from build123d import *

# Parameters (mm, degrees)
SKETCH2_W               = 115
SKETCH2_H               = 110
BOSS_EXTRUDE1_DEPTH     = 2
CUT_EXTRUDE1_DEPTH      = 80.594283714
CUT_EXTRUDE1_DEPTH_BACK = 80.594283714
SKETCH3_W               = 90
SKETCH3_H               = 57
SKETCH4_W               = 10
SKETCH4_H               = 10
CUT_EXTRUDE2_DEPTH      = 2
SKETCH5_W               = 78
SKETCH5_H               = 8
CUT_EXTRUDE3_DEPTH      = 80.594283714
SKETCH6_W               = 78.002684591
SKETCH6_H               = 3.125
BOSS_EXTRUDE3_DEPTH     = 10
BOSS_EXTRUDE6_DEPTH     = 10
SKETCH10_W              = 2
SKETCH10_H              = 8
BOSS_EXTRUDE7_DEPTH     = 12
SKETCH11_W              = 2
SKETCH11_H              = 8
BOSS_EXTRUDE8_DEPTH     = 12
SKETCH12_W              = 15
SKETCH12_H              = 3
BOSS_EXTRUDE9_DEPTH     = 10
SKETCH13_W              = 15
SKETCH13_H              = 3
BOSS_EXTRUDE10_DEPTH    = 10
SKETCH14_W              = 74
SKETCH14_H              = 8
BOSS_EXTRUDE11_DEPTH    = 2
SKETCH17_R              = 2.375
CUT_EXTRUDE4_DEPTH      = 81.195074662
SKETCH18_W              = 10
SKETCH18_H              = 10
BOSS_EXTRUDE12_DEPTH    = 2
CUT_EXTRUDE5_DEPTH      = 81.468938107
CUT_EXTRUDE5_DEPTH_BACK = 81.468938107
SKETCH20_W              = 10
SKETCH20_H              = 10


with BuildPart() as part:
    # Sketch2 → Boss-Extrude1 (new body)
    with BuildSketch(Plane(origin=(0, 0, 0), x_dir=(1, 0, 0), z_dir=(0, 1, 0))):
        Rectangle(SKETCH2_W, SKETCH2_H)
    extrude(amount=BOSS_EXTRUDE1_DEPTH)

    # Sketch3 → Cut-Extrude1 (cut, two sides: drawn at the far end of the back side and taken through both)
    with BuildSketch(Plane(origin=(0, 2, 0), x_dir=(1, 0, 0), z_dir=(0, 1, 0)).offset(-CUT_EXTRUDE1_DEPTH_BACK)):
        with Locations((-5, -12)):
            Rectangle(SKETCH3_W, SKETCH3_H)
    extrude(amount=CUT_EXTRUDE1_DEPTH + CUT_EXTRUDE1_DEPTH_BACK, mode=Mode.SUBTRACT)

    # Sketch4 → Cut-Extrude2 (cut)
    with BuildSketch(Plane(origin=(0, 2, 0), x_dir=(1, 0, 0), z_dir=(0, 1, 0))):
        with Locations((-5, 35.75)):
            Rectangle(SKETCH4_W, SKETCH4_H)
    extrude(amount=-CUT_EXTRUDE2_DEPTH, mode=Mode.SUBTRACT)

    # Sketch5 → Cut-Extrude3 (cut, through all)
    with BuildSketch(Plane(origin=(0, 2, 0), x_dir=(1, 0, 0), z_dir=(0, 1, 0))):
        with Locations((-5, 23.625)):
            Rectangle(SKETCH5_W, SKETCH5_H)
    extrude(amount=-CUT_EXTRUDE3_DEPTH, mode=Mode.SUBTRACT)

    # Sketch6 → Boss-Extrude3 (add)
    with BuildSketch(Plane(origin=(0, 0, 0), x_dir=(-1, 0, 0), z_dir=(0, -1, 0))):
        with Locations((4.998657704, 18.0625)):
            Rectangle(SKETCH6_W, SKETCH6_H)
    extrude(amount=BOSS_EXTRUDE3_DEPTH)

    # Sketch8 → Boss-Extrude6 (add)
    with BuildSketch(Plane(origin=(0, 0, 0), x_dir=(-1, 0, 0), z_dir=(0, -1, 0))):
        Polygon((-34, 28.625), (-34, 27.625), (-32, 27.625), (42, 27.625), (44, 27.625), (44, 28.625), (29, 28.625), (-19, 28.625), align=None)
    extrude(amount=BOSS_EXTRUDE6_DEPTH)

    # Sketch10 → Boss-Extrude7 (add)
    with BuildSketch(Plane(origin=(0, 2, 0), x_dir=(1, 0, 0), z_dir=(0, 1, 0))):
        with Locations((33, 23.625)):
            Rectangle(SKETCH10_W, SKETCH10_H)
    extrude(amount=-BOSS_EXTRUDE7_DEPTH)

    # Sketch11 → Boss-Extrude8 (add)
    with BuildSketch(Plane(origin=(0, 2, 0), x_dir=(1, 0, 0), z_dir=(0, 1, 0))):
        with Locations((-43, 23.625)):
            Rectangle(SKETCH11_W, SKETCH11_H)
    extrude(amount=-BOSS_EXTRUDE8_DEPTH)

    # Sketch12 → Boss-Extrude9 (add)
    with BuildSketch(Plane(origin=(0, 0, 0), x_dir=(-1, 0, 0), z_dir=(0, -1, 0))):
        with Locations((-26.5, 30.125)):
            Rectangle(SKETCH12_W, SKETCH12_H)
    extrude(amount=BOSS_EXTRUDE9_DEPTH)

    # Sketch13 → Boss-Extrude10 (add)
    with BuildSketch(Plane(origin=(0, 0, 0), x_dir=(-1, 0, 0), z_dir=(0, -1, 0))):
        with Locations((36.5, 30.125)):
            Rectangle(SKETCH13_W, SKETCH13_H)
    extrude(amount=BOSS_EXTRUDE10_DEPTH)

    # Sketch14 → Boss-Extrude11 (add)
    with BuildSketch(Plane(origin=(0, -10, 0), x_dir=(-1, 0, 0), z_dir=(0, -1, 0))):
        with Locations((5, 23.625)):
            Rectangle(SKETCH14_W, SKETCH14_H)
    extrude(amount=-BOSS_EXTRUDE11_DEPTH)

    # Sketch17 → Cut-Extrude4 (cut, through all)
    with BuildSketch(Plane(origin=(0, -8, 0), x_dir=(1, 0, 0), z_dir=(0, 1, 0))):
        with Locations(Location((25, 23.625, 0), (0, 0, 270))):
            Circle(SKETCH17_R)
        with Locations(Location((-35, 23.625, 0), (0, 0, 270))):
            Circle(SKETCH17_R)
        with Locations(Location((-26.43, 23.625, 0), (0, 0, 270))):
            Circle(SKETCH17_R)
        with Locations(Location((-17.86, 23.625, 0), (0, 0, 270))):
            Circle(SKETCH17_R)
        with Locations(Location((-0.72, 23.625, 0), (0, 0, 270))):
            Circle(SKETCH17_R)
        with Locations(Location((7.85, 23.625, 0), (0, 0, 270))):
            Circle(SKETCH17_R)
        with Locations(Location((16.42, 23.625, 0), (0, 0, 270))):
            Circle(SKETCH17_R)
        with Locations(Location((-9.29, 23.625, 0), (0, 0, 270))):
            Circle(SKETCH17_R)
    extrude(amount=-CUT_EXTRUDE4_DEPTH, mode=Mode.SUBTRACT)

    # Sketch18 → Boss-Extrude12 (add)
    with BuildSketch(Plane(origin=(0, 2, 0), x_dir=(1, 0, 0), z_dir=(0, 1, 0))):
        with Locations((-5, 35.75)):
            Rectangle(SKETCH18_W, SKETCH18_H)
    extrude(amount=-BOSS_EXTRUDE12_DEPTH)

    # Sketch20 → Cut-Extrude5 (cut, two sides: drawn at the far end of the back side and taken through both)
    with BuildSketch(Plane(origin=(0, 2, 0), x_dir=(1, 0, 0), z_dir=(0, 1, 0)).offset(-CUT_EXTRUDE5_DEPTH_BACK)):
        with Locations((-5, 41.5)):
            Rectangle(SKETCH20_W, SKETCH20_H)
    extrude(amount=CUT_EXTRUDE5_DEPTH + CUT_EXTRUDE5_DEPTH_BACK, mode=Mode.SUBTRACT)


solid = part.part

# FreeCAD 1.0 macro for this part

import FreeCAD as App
import Part
import Sketcher
Q = App.Units.Quantity

doc = App.newDocument("Part")
body = doc.addObject("PartDesign::Body", "Body")

# Sketch on XZ plane
sketch1 = doc.addObject("Sketcher::SketchObject", "Sketch")
body.addObject(sketch1)
sketch1.AttachmentSupport = (doc.XZ_Plane, [""])
sketch1.MapMode = "FlatFace"
sketch1.addGeometry([
    Part.LineSegment(App.Vector(-58, -55, 0), App.Vector(-58, 55, 0)),
    Part.LineSegment(App.Vector(-58, 55, 0), App.Vector(58, 55, 0)),
    Part.LineSegment(App.Vector(58, 55, 0), App.Vector(58, -55, 0)),
    Part.LineSegment(App.Vector(58, -55, 0), App.Vector(-58, -55, 0)),
], False)
sketch1.addConstraint([
    Sketcher.Constraint("Coincident", 0, 2, 1, 1),
    Sketcher.Constraint("Coincident", 1, 2, 2, 1),
    Sketcher.Constraint("Coincident", 2, 2, 3, 1),
    Sketcher.Constraint("Coincident", 3, 2, 0, 1),
    Sketcher.Constraint("Vertical", 0),
    Sketcher.Constraint("Horizontal", 1),
    Sketcher.Constraint("Vertical", 2),
    Sketcher.Constraint("Horizontal", 3),
    Sketcher.Constraint("Symmetric", 0, 2, 2, 2, -1, 1),
    Sketcher.Constraint("DistanceX", 1, 1, 1, 2, Q("115 mm")),
    Sketcher.Constraint("DistanceY", 0, 1, 0, 2, Q("110 mm")),
])
pad1 = doc.addObject("PartDesign::Pad", "Pad")
body.addObject(pad1)
pad1.Profile = sketch1
pad1.Length = 2
pad1.Reversed = True

# Sketch on XZ plane
sketch2 = doc.addObject("Sketcher::SketchObject", "Sketch001")
body.addObject(sketch2)
sketch2.AttachmentSupport = (doc.XZ_Plane, [""])
sketch2.MapMode = "FlatFace"
sketch2.AttachmentOffset = App.Placement(App.Vector(0, 0, -2), App.Rotation())
sketch2.addGeometry([
    Part.LineSegment(App.Vector(-50, -16, 0), App.Vector(-50, 40, 0)),
    Part.LineSegment(App.Vector(-50, 40, 0), App.Vector(40, 40, 0)),
    Part.LineSegment(App.Vector(40, 40, 0), App.Vector(40, -16, 0)),
    Part.LineSegment(App.Vector(40, -16, 0), App.Vector(-50, -16, 0)),
], False)
sketch2.addConstraint([
    Sketcher.Constraint("Coincident", 0, 2, 1, 1),
    Sketcher.Constraint("Coincident", 1, 2, 2, 1),
    Sketcher.Constraint("Coincident", 2, 2, 3, 1),
    Sketcher.Constraint("Coincident", 3, 2, 0, 1),
    Sketcher.Constraint("Vertical", 0),
    Sketcher.Constraint("Horizontal", 1),
    Sketcher.Constraint("Vertical", 2),
    Sketcher.Constraint("Horizontal", 3),
    Sketcher.Constraint("DistanceX", 1, 1, 1, 2, Q("90 mm")),
    Sketcher.Constraint("DistanceY", 0, 1, 0, 2, Q("57 mm")),
    Sketcher.Constraint("DistanceX", 0, 2, -1, 1, Q("50 mm")),
    Sketcher.Constraint("DistanceY", -1, 1, 0, 2, Q("40.5 mm")),
])
pocket1 = doc.addObject("PartDesign::Pocket", "Pocket")
body.addObject(pocket1)
pocket1.Profile = sketch2
pocket1.Type = "ThroughAll"
pocket1.Midplane = True

# Sketch on XZ plane
sketch3 = doc.addObject("Sketcher::SketchObject", "Sketch002")
body.addObject(sketch3)
sketch3.AttachmentSupport = (doc.XZ_Plane, [""])
sketch3.MapMode = "FlatFace"
sketch3.AttachmentOffset = App.Placement(App.Vector(0, 0, -2), App.Rotation())
sketch3.addGeometry([
    Part.LineSegment(App.Vector(-10, -41, 0), App.Vector(-10, -31, 0)),
    Part.LineSegment(App.Vector(-10, -31, 0), App.Vector(0, -31, 0)),
    Part.LineSegment(App.Vector(0, -31, 0), App.Vector(0, -41, 0)),
    Part.LineSegment(App.Vector(0, -41, 0), App.Vector(-10, -41, 0)),
], False)
sketch3.addConstraint([
    Sketcher.Constraint("Coincident", 0, 2, 1, 1),
    Sketcher.Constraint("Coincident", 1, 2, 2, 1),
    Sketcher.Constraint("Coincident", 2, 2, 3, 1),
    Sketcher.Constraint("Coincident", 3, 2, 0, 1),
    Sketcher.Constraint("Vertical", 0),
    Sketcher.Constraint("Horizontal", 1),
    Sketcher.Constraint("Vertical", 2),
    Sketcher.Constraint("Horizontal", 3),
    Sketcher.Constraint("PointOnObject", 1, 2, -2),
    Sketcher.Constraint("Equal", 3, 0),
    Sketcher.Constraint("DistanceX", 1, 1, 1, 2, Q("10 mm")),
    Sketcher.Constraint("DistanceY", 0, 2, -1, 1, Q("30.75 mm")),
])
pocket2 = doc.addObject("PartDesign::Pocket", "Pocket001")
body.addObject(pocket2)
pocket2.Profile = sketch3
pocket2.Length = 2
pocket2.Reversed = True

# Sketch on XZ plane
sketch4 = doc.addObject("Sketcher::SketchObject", "Sketch003")
body.addObject(sketch4)
sketch4.AttachmentSupport = (doc.XZ_Plane, [""])
sketch4.MapMode = "FlatFace"
sketch4.AttachmentOffset = App.Placement(App.Vector(0, 0, -2), App.Rotation())
sketch4.addGeometry([
    Part.LineSegment(App.Vector(-44, -28, 0), App.Vector(-44, -20, 0)),
    Part.LineSegment(App.Vector(-44, -20, 0), App.Vector(34, -20, 0)),
    Part.LineSegment(App.Vector(34, -20, 0), App.Vector(34, -28, 0)),
    Part.LineSegment(App.Vector(34, -28, 0), App.Vector(-44, -28, 0)),
], False)
sketch4.addConstraint([
    Sketcher.Constraint("Coincident", 0, 2, 1, 1),
    Sketcher.Constraint("Coincident", 1, 2, 2, 1),
    Sketcher.Constraint("Coincident", 2, 2, 3, 1),
    Sketcher.Constraint("Coincident", 3, 2, 0, 1),
    Sketcher.Constraint("Vertical", 0),
    Sketcher.Constraint("Horizontal", 1),
    Sketcher.Constraint("Vertical", 2),
    Sketcher.Constraint("Horizontal", 3),
    Sketcher.Constraint("DistanceX", 1, 1, 1, 2, Q("78 mm")),
    Sketcher.Constraint("DistanceY", 0, 1, 0, 2, Q("8 mm")),
    Sketcher.Constraint("DistanceX", 0, 2, -1, 1, Q("44 mm")),
    Sketcher.Constraint("DistanceY", 0, 2, -1, 1, Q("19.625 mm")),
])
pocket3 = doc.addObject("PartDesign::Pocket", "Pocket002")
body.addObject(pocket3)
pocket3.Profile = sketch4
pocket3.Type = "ThroughAll"
pocket3.Reversed = True

# Sketch on XZ plane
sketch5 = doc.addObject("Sketcher::SketchObject", "Sketch004")
body.addObject(sketch5)
sketch5.AttachmentSupport = (doc.XZ_Plane, [""])
sketch5.MapMode = "FlatFace"
sketch5.addGeometry([
    Part.LineSegment(App.Vector(34, -19.6, 0), App.Vector(34, -16.5, 0)),
    Part.LineSegment(App.Vector(34, -16.5, 0), App.Vector(-44, -16.5, 0)),
    Part.LineSegment(App.Vector(-44, -16.5, 0), App.Vector(-44, -19.6, 0)),
    Part.LineSegment(App.Vector(-44, -19.6, 0), App.Vector(34, -19.6, 0)),
], False)
sketch5.addConstraint([
    Sketcher.Constraint("Coincident", 0, 2, 1, 1),
    Sketcher.Constraint("Coincident", 1, 2, 2, 1),
    Sketcher.Constraint("Coincident", 2, 2, 3, 1),
    Sketcher.Constraint("Coincident", 3, 2, 0, 1),
    Sketcher.Constraint("Vertical", 0),
    Sketcher.Constraint("Horizontal", 1),
    Sketcher.Constraint("Vertical", 2),
    Sketcher.Constraint("Horizontal", 3),
    Sketcher.Constraint("DistanceX", 1, 2, -1, 1, Q("44 mm")),
    Sketcher.Constraint("DistanceY", 0, 2, -1, 1, Q("16.5 mm")),
    Sketcher.Constraint("DistanceY", 0, 1, 0, 2, Q("3.125 mm")),
    Sketcher.Constraint("DistanceX", 1, 2, 1, 1, Q("78.002685 mm")),
])
pad2 = doc.addObject("PartDesign::Pad", "Pad001")
body.addObject(pad2)
pad2.Profile = sketch5
pad2.Length = 10

# Sketch on XZ plane
sketch6 = doc.addObject("Sketcher::SketchObject", "Sketch005")
body.addObject(sketch6)
sketch6.AttachmentSupport = (doc.XZ_Plane, [""])
sketch6.MapMode = "FlatFace"
sketch6.addGeometry([
    Part.LineSegment(App.Vector(34, -28.6, 0), App.Vector(34, -27.6, 0)),
    Part.LineSegment(App.Vector(34, -27.6, 0), App.Vector(-44, -27.6, 0)),
    Part.LineSegment(App.Vector(-44, -27.6, 0), App.Vector(-44, -28.6, 0)),
    Part.LineSegment(App.Vector(-44, -28.6, 0), App.Vector(34, -28.6, 0)),
], False)
sketch6.addConstraint([
    Sketcher.Constraint("Coincident", 0, 2, 1, 1),
    Sketcher.Constraint("Coincident", 1, 2, 2, 1),
    Sketcher.Constraint("Coincident", 2, 2, 3, 1),
    Sketcher.Constraint("Coincident", 3, 2, 0, 1),
    Sketcher.Constraint("Vertical", 0),
    Sketcher.Constraint("Horizontal", 1),
    Sketcher.Constraint("Vertical", 2),
    Sketcher.Constraint("Horizontal", 3),
    Sketcher.Constraint("DistanceX", 1, 2, 1, 1, Q("78 mm")),
    Sketcher.Constraint("DistanceY", 0, 1, 0, 2, Q("1 mm")),
    Sketcher.Constraint("DistanceX", -1, 1, 0, 2, Q("34 mm")),
    Sketcher.Constraint("DistanceY", 0, 2, -1, 1, Q("27.625 mm")),
])
pad3 = doc.addObject("PartDesign::Pad", "Pad002")
body.addObject(pad3)
pad3.Profile = sketch6
pad3.Length = 10

# Sketch on XZ plane
sketch7 = doc.addObject("Sketcher::SketchObject", "Sketch006")
body.addObject(sketch7)
sketch7.AttachmentSupport = (doc.XZ_Plane, [""])
sketch7.MapMode = "FlatFace"
sketch7.AttachmentOffset = App.Placement(App.Vector(0, 0, -2), App.Rotation())
sketch7.addGeometry([
    Part.LineSegment(App.Vector(32, -27.6, 0), App.Vector(32, -19.6, 0)),
    Part.LineSegment(App.Vector(32, -19.6, 0), App.Vector(34, -19.6, 0)),
    Part.LineSegment(App.Vector(34, -19.6, 0), App.Vector(34, -27.6, 0)),
    Part.LineSegment(App.Vector(34, -27.6, 0), App.Vector(32, -27.6, 0)),
], False)
sketch7.addConstraint([
    Sketcher.Constraint("Coincident", 0, 2, 1, 1),
    Sketcher.Constraint("Coincident", 1, 2, 2, 1),
    Sketcher.Constraint("Coincident", 2, 2, 3, 1),
    Sketcher.Constraint("Coincident", 3, 2, 0, 1),
    Sketcher.Constraint("Vertical", 0),
    Sketcher.Constraint("Horizontal", 1),
    Sketcher.Constraint("Vertical", 2),
    Sketcher.Constraint("Horizontal", 3),
    Sketcher.Constraint("DistanceX", 1, 1, 1, 2, Q("2 mm")),
    Sketcher.Constraint("DistanceY", 0, 1, 0, 2, Q("8 mm")),
    Sketcher.Constraint("DistanceX", -1, 1, 0, 2, Q("32 mm")),
    Sketcher.Constraint("DistanceY", 0, 2, -1, 1, Q("19.625 mm")),
])
pad4 = doc.addObject("PartDesign::Pad", "Pad003")
body.addObject(pad4)
pad4.Profile = sketch7
pad4.Length = 12

# Sketch on XZ plane
sketch8 = doc.addObject("Sketcher::SketchObject", "Sketch007")
body.addObject(sketch8)
sketch8.AttachmentSupport = (doc.XZ_Plane, [""])
sketch8.MapMode = "FlatFace"
sketch8.AttachmentOffset = App.Placement(App.Vector(0, 0, -2), App.Rotation())
sketch8.addGeometry([
    Part.LineSegment(App.Vector(-44, -27.6, 0), App.Vector(-44, -19.6, 0)),
    Part.LineSegment(App.Vector(-44, -19.6, 0), App.Vector(-42, -19.6, 0)),
    Part.LineSegment(App.Vector(-42, -19.6, 0), App.Vector(-42, -27.6, 0)),
    Part.LineSegment(App.Vector(-42, -27.6, 0), App.Vector(-44, -27.6, 0)),
], False)
sketch8.addConstraint([
    Sketcher.Constraint("Coincident", 0, 2, 1, 1),
    Sketcher.Constraint("Coincident", 1, 2, 2, 1),
    Sketcher.Constraint("Coincident", 2, 2, 3, 1),
    Sketcher.Constraint("Coincident", 3, 2, 0, 1),
    Sketcher.Constraint("Vertical", 0),
    Sketcher.Constraint("Horizontal", 1),
    Sketcher.Constraint("Vertical", 2),
    Sketcher.Constraint("Horizontal", 3),
    Sketcher.Constraint("DistanceX", 1, 1, 1, 2, Q("2 mm")),
    Sketcher.Constraint("DistanceY", 0, 1, 0, 2, Q("8 mm")),
    Sketcher.Constraint("DistanceX", 0, 2, -1, 1, Q("44 mm")),
    Sketcher.Constraint("DistanceY", 0, 2, -1, 1, Q("19.625 mm")),
])
pad5 = doc.addObject("PartDesign::Pad", "Pad004")
body.addObject(pad5)
pad5.Profile = sketch8
pad5.Length = 12

# Sketch on XZ plane
sketch9 = doc.addObject("Sketcher::SketchObject", "Sketch008")
body.addObject(sketch9)
sketch9.AttachmentSupport = (doc.XZ_Plane, [""])
sketch9.MapMode = "FlatFace"
sketch9.addGeometry([
    Part.LineSegment(App.Vector(34, -31.6, 0), App.Vector(34, -28.6, 0)),
    Part.LineSegment(App.Vector(34, -28.6, 0), App.Vector(19, -28.6, 0)),
    Part.LineSegment(App.Vector(19, -28.6, 0), App.Vector(19, -31.6, 0)),
    Part.LineSegment(App.Vector(19, -31.6, 0), App.Vector(34, -31.6, 0)),
], False)
sketch9.addConstraint([
    Sketcher.Constraint("Coincident", 0, 2, 1, 1),
    Sketcher.Constraint("Coincident", 1, 2, 2, 1),
    Sketcher.Constraint("Coincident", 2, 2, 3, 1),
    Sketcher.Constraint("Coincident", 3, 2, 0, 1),
    Sketcher.Constraint("Vertical", 0),
    Sketcher.Constraint("Horizontal", 1),
    Sketcher.Constraint("Vertical", 2),
    Sketcher.Constraint("Horizontal", 3),
    Sketcher.Constraint("DistanceX", 1, 2, 1, 1, Q("15 mm")),
    Sketcher.Constraint("DistanceY", 0, 1, 0, 2, Q("3 mm")),
    Sketcher.Constraint("DistanceX", -1, 1, 0, 2, Q("34 mm")),
    Sketcher.Constraint("DistanceY", 0, 2, -1, 1, Q("28.625 mm")),
])
pad6 = doc.addObject("PartDesign::Pad", "Pad005")
body.addObject(pad6)
pad6.Profile = sketch9
pad6.Length = 10

# Sketch on XZ plane
sketch10 = doc.addObject("Sketcher::SketchObject", "Sketch009")
body.addObject(sketch10)
sketch10.AttachmentSupport = (doc.XZ_Plane, [""])
sketch10.MapMode = "FlatFace"
sketch10.addGeometry([
    Part.LineSegment(App.Vector(-29, -31.6, 0), App.Vector(-29, -28.6, 0)),
    Part.LineSegment(App.Vector(-29, -28.6, 0), App.Vector(-44, -28.6, 0)),
    Part.LineSegment(App.Vector(-44, -28.6, 0), App.Vector(-44, -31.6, 0)),
    Part.LineSegment(App.Vector(-44, -31.6, 0), App.Vector(-29, -31.6, 0)),
], False)
sketch10.addConstraint([
    Sketcher.Constraint("Coincident", 0, 2, 1, 1),
    Sketcher.Constraint("Coincident", 1, 2, 2, 1),
    Sketcher.Constraint("Coincident", 2, 2, 3, 1),
    Sketcher.Constraint("Coincident", 3, 2, 0, 1),
    Sketcher.Constraint("Vertical", 0),
    Sketcher.Constraint("Horizontal", 1),
    Sketcher.Constraint("Vertical", 2),
    Sketcher.Constraint("Horizontal", 3),
    Sketcher.Constraint("DistanceX", 1, 2, 1, 1, Q("15 mm")),
    Sketcher.Constraint("DistanceY", 0, 1, 0, 2, Q("3 mm")),
    Sketcher.Constraint("DistanceX", 0, 2, -1, 1, Q("29 mm")),
    Sketcher.Constraint("DistanceY", 0, 2, -1, 1, Q("28.625 mm")),
])
pad7 = doc.addObject("PartDesign::Pad", "Pad006")
body.addObject(pad7)
pad7.Profile = sketch10
pad7.Length = 10

# Sketch on XZ plane
sketch11 = doc.addObject("Sketcher::SketchObject", "Sketch010")
body.addObject(sketch11)
sketch11.AttachmentSupport = (doc.XZ_Plane, [""])
sketch11.MapMode = "FlatFace"
sketch11.AttachmentOffset = App.Placement(App.Vector(0, 0, 10), App.Rotation())
sketch11.addGeometry([
    Part.LineSegment(App.Vector(32, -28, 0), App.Vector(32, -20, 0)),
    Part.LineSegment(App.Vector(32, -20, 0), App.Vector(-42, -20, 0)),
    Part.LineSegment(App.Vector(-42, -20, 0), App.Vector(-42, -28, 0)),
    Part.LineSegment(App.Vector(-42, -28, 0), App.Vector(32, -28, 0)),
], False)
sketch11.addConstraint([
    Sketcher.Constraint("Coincident", 0, 2, 1, 1),
    Sketcher.Constraint("Coincident", 1, 2, 2, 1),
    Sketcher.Constraint("Coincident", 2, 2, 3, 1),
    Sketcher.Constraint("Coincident", 3, 2, 0, 1),
    Sketcher.Constraint("Vertical", 0),
    Sketcher.Constraint("Horizontal", 1),
    Sketcher.Constraint("Vertical", 2),
    Sketcher.Constraint("Horizontal", 3),
    Sketcher.Constraint("DistanceX", 1, 2, 1, 1, Q("74 mm")),
    Sketcher.Constraint("DistanceY", 0, 1, 0, 2, Q("8 mm")),
    Sketcher.Constraint("DistanceX", -1, 1, 0, 2, Q("32 mm")),
    Sketcher.Constraint("DistanceY", 0, 2, -1, 1, Q("19.625 mm")),
])
pad8 = doc.addObject("PartDesign::Pad", "Pad007")
body.addObject(pad8)
pad8.Profile = sketch11
pad8.Length = 2
pad8.Reversed = True

# Sketch on XZ plane
sketch12 = doc.addObject("Sketcher::SketchObject", "Sketch011")
body.addObject(sketch12)
sketch12.AttachmentSupport = (doc.XZ_Plane, [""])
sketch12.MapMode = "FlatFace"
sketch12.AttachmentOffset = App.Placement(App.Vector(0, 0, 8), App.Rotation())
sketch12.addGeometry([
    Part.Circle(App.Vector(25, -23.6, 0), App.Vector(0, 0, 1), 2.4),  # 0
    Part.Circle(App.Vector(-35, -23.6, 0), App.Vector(0, 0, 1), 2.4),  # 1
    Part.Circle(App.Vector(-26.4, -23.6, 0), App.Vector(0, 0, 1), 2.4),  # 2
    Part.Circle(App.Vector(-17.9, -23.6, 0), App.Vector(0, 0, 1), 2.4),  # 3
    Part.Circle(App.Vector(-0.7, -23.6, 0), App.Vector(0, 0, 1), 2.4),  # 4
    Part.Circle(App.Vector(7.8, -23.6, 0), App.Vector(0, 0, 1), 2.4),  # 5
    Part.Circle(App.Vector(16.4, -23.6, 0), App.Vector(0, 0, 1), 2.4),  # 6
    Part.Circle(App.Vector(-9.3, -23.6, 0), App.Vector(0, 0, 1), 2.4),  # 7
], False)
sketch12.addConstraint([
    Sketcher.Constraint("Equal", 0, 1),
    Sketcher.Constraint("Equal", 1, 2),
    Sketcher.Constraint("Equal", 2, 3),
    Sketcher.Constraint("Equal", 3, 4),
    Sketcher.Constraint("Equal", 4, 5),
    Sketcher.Constraint("Equal", 5, 6),
    Sketcher.Constraint("Equal", 6, 7),
    Sketcher.Constraint("Horizontal", 0, 3, 1, 3),
    Sketcher.Constraint("Horizontal", 1, 3, 2, 3),
    Sketcher.Constraint("Horizontal", 2, 3, 3, 3),
    Sketcher.Constraint("Horizontal", 3, 3, 4, 3),
    Sketcher.Constraint("Horizontal", 4, 3, 5, 3),
    Sketcher.Constraint("Horizontal", 5, 3, 6, 3),
    Sketcher.Constraint("Horizontal", 6, 3, 7, 3),
    Sketcher.Constraint("Diameter", 0, Q("4.75 mm")),
    Sketcher.Constraint("DistanceX", -1, 1, 0, 3, Q("25 mm")),
    Sketcher.Constraint("DistanceX", 1, 3, -1, 1, Q("35 mm")),
    Sketcher.Constraint("DistanceX", 2, 3, -1, 1, Q("26.43 mm")),
    Sketcher.Constraint("DistanceX", 3, 3, -1, 1, Q("17.86 mm")),
    Sketcher.Constraint("DistanceX", 4, 3, -1, 1, Q("0.72 mm")),
    Sketcher.Constraint("DistanceX", -1, 1, 5, 3, Q("7.85 mm")),
    Sketcher.Constraint("DistanceX", -1, 1, 6, 3, Q("16.42 mm")),
    Sketcher.Constraint("DistanceX", 7, 3, -1, 1, Q("9.29 mm")),
    Sketcher.Constraint("DistanceY", 0, 3, -1, 1, Q("23.625 mm")),
])
pocket4 = doc.addObject("PartDesign::Pocket", "Pocket003")
body.addObject(pocket4)
pocket4.Profile = sketch12
pocket4.Type = "ThroughAll"
pocket4.Reversed = True

# Sketch on XZ plane
sketch13 = doc.addObject("Sketcher::SketchObject", "Sketch012")
body.addObject(sketch13)
sketch13.AttachmentSupport = (doc.XZ_Plane, [""])
sketch13.MapMode = "FlatFace"
sketch13.AttachmentOffset = App.Placement(App.Vector(0, 0, -2), App.Rotation())
sketch13.addGeometry([
    Part.LineSegment(App.Vector(-10, -41, 0), App.Vector(-10, -31, 0)),
    Part.LineSegment(App.Vector(-10, -31, 0), App.Vector(0, -31, 0)),
    Part.LineSegment(App.Vector(0, -31, 0), App.Vector(0, -41, 0)),
    Part.LineSegment(App.Vector(0, -41, 0), App.Vector(-10, -41, 0)),
], False)
sketch13.addConstraint([
    Sketcher.Constraint("Coincident", 0, 2, 1, 1),
    Sketcher.Constraint("Coincident", 1, 2, 2, 1),
    Sketcher.Constraint("Coincident", 2, 2, 3, 1),
    Sketcher.Constraint("Coincident", 3, 2, 0, 1),
    Sketcher.Constraint("Vertical", 0),
    Sketcher.Constraint("Horizontal", 1),
    Sketcher.Constraint("Vertical", 2),
    Sketcher.Constraint("Horizontal", 3),
    Sketcher.Constraint("PointOnObject", 1, 2, -2),
    Sketcher.Constraint("Equal", 3, 0),
    Sketcher.Constraint("DistanceX", 1, 1, 1, 2, Q("10 mm")),
    Sketcher.Constraint("DistanceY", 0, 2, -1, 1, Q("30.75 mm")),
])
pad9 = doc.addObject("PartDesign::Pad", "Pad008")
body.addObject(pad9)
pad9.Profile = sketch13
pad9.Length = 2

# Sketch on XZ plane
sketch14 = doc.addObject("Sketcher::SketchObject", "Sketch013")
body.addObject(sketch14)
sketch14.AttachmentSupport = (doc.XZ_Plane, [""])
sketch14.MapMode = "FlatFace"
sketch14.AttachmentOffset = App.Placement(App.Vector(0, 0, -2), App.Rotation())
sketch14.addGeometry([
    Part.LineSegment(App.Vector(-10, -46, 0), App.Vector(-10, -36, 0)),
    Part.LineSegment(App.Vector(-10, -36, 0), App.Vector(0, -36, 0)),
    Part.LineSegment(App.Vector(0, -36, 0), App.Vector(0, -46, 0)),
    Part.LineSegment(App.Vector(0, -46, 0), App.Vector(-10, -46, 0)),
], False)
sketch14.addConstraint([
    Sketcher.Constraint("Coincident", 0, 2, 1, 1),
    Sketcher.Constraint("Coincident", 1, 2, 2, 1),
    Sketcher.Constraint("Coincident", 2, 2, 3, 1),
    Sketcher.Constraint("Coincident", 3, 2, 0, 1),
    Sketcher.Constraint("Vertical", 0),
    Sketcher.Constraint("Horizontal", 1),
    Sketcher.Constraint("Vertical", 2),
    Sketcher.Constraint("Horizontal", 3),
    Sketcher.Constraint("PointOnObject", 1, 2, -2),
    Sketcher.Constraint("Equal", 3, 0),
    Sketcher.Constraint("DistanceX", 1, 1, 1, 2, Q("10 mm")),
    Sketcher.Constraint("DistanceY", 0, 2, -1, 1, Q("36.5 mm")),
])
pocket5 = doc.addObject("PartDesign::Pocket", "Pocket004")
body.addObject(pocket5)
pocket5.Profile = sketch14
pocket5.Type = "ThroughAll"
pocket5.Midplane = True

doc.recompute()
